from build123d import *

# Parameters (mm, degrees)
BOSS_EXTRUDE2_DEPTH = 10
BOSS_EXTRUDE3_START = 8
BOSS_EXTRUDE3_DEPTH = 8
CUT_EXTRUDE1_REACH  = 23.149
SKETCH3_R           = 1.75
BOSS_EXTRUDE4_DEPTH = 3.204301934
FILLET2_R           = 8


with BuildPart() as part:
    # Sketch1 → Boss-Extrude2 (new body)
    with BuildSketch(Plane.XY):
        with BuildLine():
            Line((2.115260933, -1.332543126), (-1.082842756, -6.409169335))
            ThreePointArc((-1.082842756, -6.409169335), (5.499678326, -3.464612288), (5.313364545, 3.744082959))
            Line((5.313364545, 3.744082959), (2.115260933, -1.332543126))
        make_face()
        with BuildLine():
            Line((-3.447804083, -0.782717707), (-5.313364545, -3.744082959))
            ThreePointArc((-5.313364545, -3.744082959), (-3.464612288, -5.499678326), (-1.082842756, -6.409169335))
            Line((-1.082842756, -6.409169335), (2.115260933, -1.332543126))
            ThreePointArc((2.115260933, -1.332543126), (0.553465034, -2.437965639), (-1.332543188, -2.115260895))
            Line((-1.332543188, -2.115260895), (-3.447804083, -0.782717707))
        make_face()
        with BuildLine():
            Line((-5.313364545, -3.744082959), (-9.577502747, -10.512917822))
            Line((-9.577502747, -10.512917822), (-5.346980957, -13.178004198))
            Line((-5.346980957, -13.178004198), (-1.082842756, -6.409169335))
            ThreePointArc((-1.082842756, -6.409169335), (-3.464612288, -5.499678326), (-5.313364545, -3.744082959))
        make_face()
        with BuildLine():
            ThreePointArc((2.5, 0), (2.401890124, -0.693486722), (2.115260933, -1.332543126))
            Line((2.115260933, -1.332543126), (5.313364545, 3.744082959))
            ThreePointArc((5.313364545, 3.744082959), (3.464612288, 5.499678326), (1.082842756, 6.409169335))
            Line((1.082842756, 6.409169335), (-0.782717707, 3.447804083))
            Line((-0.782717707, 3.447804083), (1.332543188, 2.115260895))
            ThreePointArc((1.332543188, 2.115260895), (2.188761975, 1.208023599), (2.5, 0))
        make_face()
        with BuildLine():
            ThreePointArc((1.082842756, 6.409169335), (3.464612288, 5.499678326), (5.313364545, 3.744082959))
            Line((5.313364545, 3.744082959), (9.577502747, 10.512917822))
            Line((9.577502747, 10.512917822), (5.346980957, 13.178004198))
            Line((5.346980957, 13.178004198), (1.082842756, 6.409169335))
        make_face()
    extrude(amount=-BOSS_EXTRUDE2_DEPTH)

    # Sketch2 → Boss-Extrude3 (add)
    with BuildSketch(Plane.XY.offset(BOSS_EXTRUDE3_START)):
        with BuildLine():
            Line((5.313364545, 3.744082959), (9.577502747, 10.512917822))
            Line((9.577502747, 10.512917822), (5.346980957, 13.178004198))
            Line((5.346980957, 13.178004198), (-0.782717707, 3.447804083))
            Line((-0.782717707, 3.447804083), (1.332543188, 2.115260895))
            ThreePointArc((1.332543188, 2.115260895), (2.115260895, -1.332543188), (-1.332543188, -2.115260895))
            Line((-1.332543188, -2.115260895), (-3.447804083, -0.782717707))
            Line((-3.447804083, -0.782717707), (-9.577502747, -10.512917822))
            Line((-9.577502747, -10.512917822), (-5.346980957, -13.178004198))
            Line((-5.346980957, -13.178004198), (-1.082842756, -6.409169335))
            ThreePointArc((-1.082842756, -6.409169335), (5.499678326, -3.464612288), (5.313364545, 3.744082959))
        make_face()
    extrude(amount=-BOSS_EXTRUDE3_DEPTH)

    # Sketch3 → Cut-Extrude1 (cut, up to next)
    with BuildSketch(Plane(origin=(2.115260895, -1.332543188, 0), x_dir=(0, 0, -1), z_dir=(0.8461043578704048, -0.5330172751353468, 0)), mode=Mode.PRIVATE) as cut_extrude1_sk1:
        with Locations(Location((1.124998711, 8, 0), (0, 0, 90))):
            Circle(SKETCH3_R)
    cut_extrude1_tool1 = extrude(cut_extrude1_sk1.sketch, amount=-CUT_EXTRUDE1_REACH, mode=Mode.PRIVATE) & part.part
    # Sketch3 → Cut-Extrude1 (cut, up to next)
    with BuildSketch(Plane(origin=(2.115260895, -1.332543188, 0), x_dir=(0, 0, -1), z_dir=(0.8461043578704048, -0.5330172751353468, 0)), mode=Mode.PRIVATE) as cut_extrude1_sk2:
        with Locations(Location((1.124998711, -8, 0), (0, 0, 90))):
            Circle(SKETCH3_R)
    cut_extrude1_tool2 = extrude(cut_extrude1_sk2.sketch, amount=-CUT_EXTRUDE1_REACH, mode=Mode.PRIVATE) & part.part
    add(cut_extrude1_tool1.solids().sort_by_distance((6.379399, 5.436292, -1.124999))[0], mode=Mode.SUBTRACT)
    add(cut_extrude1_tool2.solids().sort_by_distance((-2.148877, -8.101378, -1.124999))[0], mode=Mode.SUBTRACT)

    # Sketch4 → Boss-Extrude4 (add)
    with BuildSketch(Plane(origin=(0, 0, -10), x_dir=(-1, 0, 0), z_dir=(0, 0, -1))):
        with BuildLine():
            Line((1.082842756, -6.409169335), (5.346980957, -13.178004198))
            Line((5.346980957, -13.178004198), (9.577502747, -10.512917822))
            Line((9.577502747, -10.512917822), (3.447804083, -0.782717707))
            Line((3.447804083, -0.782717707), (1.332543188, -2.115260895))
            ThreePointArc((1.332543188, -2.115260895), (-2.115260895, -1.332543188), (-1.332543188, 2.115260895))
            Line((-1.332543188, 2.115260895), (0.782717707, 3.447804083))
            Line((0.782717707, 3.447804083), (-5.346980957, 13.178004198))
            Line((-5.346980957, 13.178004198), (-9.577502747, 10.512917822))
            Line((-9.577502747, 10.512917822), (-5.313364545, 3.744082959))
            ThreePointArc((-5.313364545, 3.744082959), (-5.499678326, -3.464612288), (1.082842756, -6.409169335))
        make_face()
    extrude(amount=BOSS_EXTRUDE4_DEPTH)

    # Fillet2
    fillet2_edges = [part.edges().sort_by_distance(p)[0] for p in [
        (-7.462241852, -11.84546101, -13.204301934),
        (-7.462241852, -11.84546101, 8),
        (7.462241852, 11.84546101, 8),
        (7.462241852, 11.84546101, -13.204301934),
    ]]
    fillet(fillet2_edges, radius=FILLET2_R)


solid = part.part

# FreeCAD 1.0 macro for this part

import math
import FreeCAD as App
import Part
import Sketcher
from FreeCAD import Vector


def edges_at(feature, points):
    """Names of the edges that pass closest to the given points."""
    edges = feature.Shape.Edges
    near = lambda p: min(range(len(edges)), key=lambda i: edges[i].distToShape(Part.Vertex(*p))[0])
    return sorted({f"Edge{near(p) + 1}" for p in points})

doc = App.newDocument("Part")
body = doc.addObject("PartDesign::Body", "Body")

sketch1 = body.newObject("Sketcher::SketchObject", "Sketch")
sketch1.AttachmentSupport = (doc.getObject("XY_Plane"), [""])
sketch1.MapMode = "FlatFace"
sketch1.addGeometry([
    Part.ArcOfCircle(Part.Circle(Vector(0, 0, 0), Vector(0, 0, 1), 6.5), math.radians(-99.589683), math.radians(35.170587)),
    Part.LineSegment(Vector(5.313365, 3.744083, 0), Vector(9.577503, 10.512918, 0)),
    Part.LineSegment(Vector(9.577503, 10.512918, 0), Vector(5.346981, 13.178004, 0)),
    Part.LineSegment(Vector(5.346981, 13.178004, 0), Vector(1.082843, 6.409169, 0)),
    Part.LineSegment(Vector(1.082843, 6.409169, 0), Vector(-0.782718, 3.447804, 0)),
    Part.LineSegment(Vector(-0.782718, 3.447804, 0), Vector(1.332543, 2.115261, 0)),
    Part.ArcOfCircle(Part.Circle(Vector(0, 0, 0), Vector(0, 0, 1), 2.5), math.radians(0), math.radians(57.790452)),
    Part.ArcOfCircle(Part.Circle(Vector(0, 0, 0), Vector(0, 0, 1), 2.5), math.radians(-32.209546), math.radians(0)),
    Part.ArcOfCircle(Part.Circle(Vector(0, 0, 0), Vector(0, 0, 1), 2.5), math.radians(-122.209548), math.radians(-32.209546)),
    Part.LineSegment(Vector(-1.332543, -2.115261, 0), Vector(-3.447804, -0.782718, 0)),
    Part.LineSegment(Vector(-3.447804, -0.782718, 0), Vector(-5.313365, -3.744083, 0)),
    Part.LineSegment(Vector(-5.313365, -3.744083, 0), Vector(-9.577503, -10.512918, 0)),
    Part.LineSegment(Vector(-9.577503, -10.512918, 0), Vector(-5.346981, -13.178004, 0)),
    Part.LineSegment(Vector(-5.346981, -13.178004, 0), Vector(-1.082843, -6.409169, 0)),
], False)
sketch1.addConstraint([
    Sketcher.Constraint("Coincident", 0, 2, 1, 1),
    Sketcher.Constraint("Coincident", 1, 2, 2, 1),
    Sketcher.Constraint("Coincident", 2, 2, 3, 1),
    Sketcher.Constraint("Coincident", 3, 2, 4, 1),
    Sketcher.Constraint("Coincident", 4, 2, 5, 1),
    Sketcher.Constraint("Tangent", 5, 2, 6, 2),
    Sketcher.Constraint("Tangent", 6, 1, 7, 2),
    Sketcher.Constraint("Tangent", 7, 1, 8, 2),
    Sketcher.Constraint("Tangent", 8, 1, 9, 1),
    Sketcher.Constraint("Coincident", 9, 2, 10, 1),
    Sketcher.Constraint("Coincident", 10, 2, 11, 1),
    Sketcher.Constraint("Coincident", 11, 2, 12, 1),
    Sketcher.Constraint("Coincident", 12, 2, 13, 1),
    Sketcher.Constraint("Coincident", 13, 2, 0, 1),
    Sketcher.Constraint("Coincident", 0, 3, -1, 1),
    Sketcher.Constraint("Coincident", 6, 3, -1, 1),
    Sketcher.Constraint("Coincident", 8, 3, -1, 1),
    Sketcher.Constraint("Symmetric", 0, 2, 10, 2, -1, 1),
    Sketcher.Constraint("Symmetric", 1, 2, 11, 2, -1, 1),
    Sketcher.Constraint("Symmetric", 2, 2, 12, 2, -1, 1),
    Sketcher.Constraint("Symmetric", 3, 2, 13, 2, -1, 1),
    Sketcher.Constraint("PointOnObject", 6, 1, -1),
    Sketcher.Constraint("Perpendicular", 1, 2),
    Sketcher.Constraint("Perpendicular", 2, 3),
    Sketcher.Constraint("Parallel", 3, 4),
    Sketcher.Constraint("Perpendicular", 4, 5),
    Sketcher.Constraint("Parallel", 5, 9),
    Sketcher.Constraint("Perpendicular", 9, 10),
    Sketcher.Constraint("Equal", 1, 3),
    Sketcher.Constraint("Radius", 0, 6.5),
    Sketcher.Constraint("Radius", 6, 2.5),
    Sketcher.Constraint("Distance", 1, 8.0),
    Sketcher.Constraint("Distance", 2, 5.0),
    Sketcher.Constraint("DistanceX", 11, 2, 9, 2, 6.129699),
    Sketcher.Constraint("DistanceX", -1, 1, 7, 1, 2.115261),
])
pad1 = body.newObject("PartDesign::Pad", "Pad")
pad1.Profile = sketch1
pad1.Length = 10
pad1.Reversed = True

sketch2 = body.newObject("Sketcher::SketchObject", "Sketch001")
sketch2.AttachmentSupport = (doc.getObject("XY_Plane"), [""])
sketch2.MapMode = "FlatFace"
sketch2.AttachmentOffset = App.Placement(Vector(0, 0, 8), App.Rotation())
sketch2.addGeometry([
    Part.LineSegment(Vector(5.313365, 3.744083, 0), Vector(9.577503, 10.512918, 0)),
    Part.LineSegment(Vector(9.577503, 10.512918, 0), Vector(5.346981, 13.178004, 0)),
    Part.LineSegment(Vector(5.346981, 13.178004, 0), Vector(-0.782718, 3.447804, 0)),
    Part.LineSegment(Vector(-0.782718, 3.447804, 0), Vector(1.332543, 2.115261, 0)),
    Part.ArcOfCircle(Part.Circle(Vector(0, 0, 0), Vector(0, 0, 1), 2.5), math.radians(-122.209548), math.radians(57.790452)),
    Part.LineSegment(Vector(-1.332543, -2.115261, 0), Vector(-3.447804, -0.782718, 0)),
    Part.LineSegment(Vector(-3.447804, -0.782718, 0), Vector(-9.577503, -10.512918, 0)),
    Part.LineSegment(Vector(-9.577503, -10.512918, 0), Vector(-5.346981, -13.178004, 0)),
    Part.LineSegment(Vector(-5.346981, -13.178004, 0), Vector(-1.082843, -6.409169, 0)),
    Part.ArcOfCircle(Part.Circle(Vector(0, 0, 0), Vector(0, 0, 1), 6.5), math.radians(-99.589683), math.radians(35.170587)),
], False)
sketch2.addConstraint([
    Sketcher.Constraint("Coincident", 0, 2, 1, 1),
    Sketcher.Constraint("Coincident", 1, 2, 2, 1),
    Sketcher.Constraint("Coincident", 2, 2, 3, 1),
    Sketcher.Constraint("Tangent", 3, 2, 4, 2),
    Sketcher.Constraint("Tangent", 4, 1, 5, 1),
    Sketcher.Constraint("Coincident", 5, 2, 6, 1),
    Sketcher.Constraint("Coincident", 6, 2, 7, 1),
    Sketcher.Constraint("Coincident", 7, 2, 8, 1),
    Sketcher.Constraint("Coincident", 8, 2, 9, 1),
    Sketcher.Constraint("Coincident", 9, 2, 0, 1),
    Sketcher.Constraint("Coincident", 4, 3, -1, 1),
    Sketcher.Constraint("Coincident", 9, 3, -1, 1),
    Sketcher.Constraint("Symmetric", 0, 2, 6, 2, -1, 1),
    Sketcher.Constraint("Symmetric", 1, 2, 7, 2, -1, 1),
    Sketcher.Constraint("Perpendicular", 0, 1),
    Sketcher.Constraint("Perpendicular", 1, 2),
    Sketcher.Constraint("Perpendicular", 2, 3),
    Sketcher.Constraint("Parallel", 3, 5),
    Sketcher.Constraint("Perpendicular", 5, 6),
    Sketcher.Constraint("Perpendicular", 7, 8),
    Sketcher.Constraint("Equal", 3, 5),
    Sketcher.Constraint("Radius", 4, 2.5),
    Sketcher.Constraint("Radius", 9, 6.5),
    Sketcher.Constraint("Distance", 0, 8.0),
    Sketcher.Constraint("Distance", 1, 5.0),
    Sketcher.Constraint("DistanceX", 2, 2, 1, 2, 6.129699),
])
pad2 = body.newObject("PartDesign::Pad", "Pad001")
pad2.Profile = sketch2
pad2.Length = 8
pad2.Reversed = True

sketch3 = body.newObject("Sketcher::SketchObject", "Sketch002")
sketch3.Placement = App.Placement(Vector(2.115261, -1.332543, 0), App.Rotation(Vector(0, 0, -1), Vector(0.533017275, 0.846104358, 0), Vector(0.846104358, -0.533017275, 0), "ZXY"))
sketch3.addGeometry(Part.Circle(Vector(1.124999, 8, 0), Vector(0, 0, 1), 1.75), False)
sketch3.addConstraint([
    Sketcher.Constraint("Diameter", 0, 3.5),
    Sketcher.Constraint("DistanceY", -1, 1, 0, 3, 8.0),
    Sketcher.Constraint("DistanceX", -1, 1, 0, 3, 1.124999),
])
pocket1 = body.newObject("PartDesign::Pocket", "Pocket")
pocket1.Profile = sketch3
pocket1.Type = "UpToFirst"

sketch4 = body.newObject("Sketcher::SketchObject", "Sketch003")
sketch4.Placement = App.Placement(Vector(2.115261, -1.332543, 0), App.Rotation(Vector(0, 0, -1), Vector(0.533017275, 0.846104358, 0), Vector(0.846104358, -0.533017275, 0), "ZXY"))
sketch4.addGeometry(Part.Circle(Vector(1.124999, -8, 0), Vector(0, 0, 1), 1.75), False)
sketch4.addConstraint([
    Sketcher.Constraint("Diameter", 0, 3.5),
    Sketcher.Constraint("DistanceY", 0, 3, -1, 1, 8.0),
    Sketcher.Constraint("DistanceX", -1, 1, 0, 3, 1.124999),
])
pocket2 = body.newObject("PartDesign::Pocket", "Pocket001")
pocket2.Profile = sketch4
pocket2.Type = "UpToFirst"

sketch5 = body.newObject("Sketcher::SketchObject", "Sketch004")
sketch5.AttachmentSupport = (doc.getObject("XY_Plane"), [""])
sketch5.MapMode = "FlatFace"
sketch5.AttachmentOffset = App.Placement(Vector(0, 0, -10), App.Rotation())
sketch5.addGeometry([
    Part.LineSegment(Vector(-1.082843, -6.409169, 0), Vector(-5.346981, -13.178004, 0)),
    Part.LineSegment(Vector(-5.346981, -13.178004, 0), Vector(-9.577503, -10.512918, 0)),
    Part.LineSegment(Vector(-9.577503, -10.512918, 0), Vector(-3.447804, -0.782718, 0)),
    Part.LineSegment(Vector(-3.447804, -0.782718, 0), Vector(-1.332543, -2.115261, 0)),
    Part.ArcOfCircle(Part.Circle(Vector(0, 0, 0), Vector(0, 0, 1), 2.5), math.radians(-122.209548), math.radians(57.790452)),
    Part.LineSegment(Vector(1.332543, 2.115261, 0), Vector(-0.782718, 3.447804, 0)),
    Part.LineSegment(Vector(-0.782718, 3.447804, 0), Vector(5.346981, 13.178004, 0)),
    Part.LineSegment(Vector(5.346981, 13.178004, 0), Vector(9.577503, 10.512918, 0)),
    Part.LineSegment(Vector(9.577503, 10.512918, 0), Vector(5.313365, 3.744083, 0)),
    Part.ArcOfCircle(Part.Circle(Vector(0, 0, 0), Vector(0, 0, 1), 6.5), math.radians(-99.589683), math.radians(35.170587)),
], False)
sketch5.addConstraint([
    Sketcher.Constraint("Coincident", 0, 2, 1, 1),
    Sketcher.Constraint("Coincident", 1, 2, 2, 1),
    Sketcher.Constraint("Coincident", 2, 2, 3, 1),
    Sketcher.Constraint("Tangent", 3, 2, 4, 1),
    Sketcher.Constraint("Tangent", 4, 2, 5, 1),
    Sketcher.Constraint("Coincident", 5, 2, 6, 1),
    Sketcher.Constraint("Coincident", 6, 2, 7, 1),
    Sketcher.Constraint("Coincident", 7, 2, 8, 1),
    Sketcher.Constraint("Coincident", 8, 2, 9, 2),
    Sketcher.Constraint("Coincident", 9, 1, 0, 1),
    Sketcher.Constraint("Coincident", 4, 3, -1, 1),
    Sketcher.Constraint("Coincident", 9, 3, -1, 1),
    Sketcher.Constraint("Symmetric", 0, 2, 6, 2, -1, 1),
    Sketcher.Constraint("Symmetric", 1, 2, 7, 2, -1, 1),
    Sketcher.Constraint("Perpendicular", 0, 1),
    Sketcher.Constraint("Perpendicular", 1, 2),
    Sketcher.Constraint("Perpendicular", 2, 3),
    Sketcher.Constraint("Parallel", 3, 5),
    Sketcher.Constraint("Perpendicular", 5, 6),
    Sketcher.Constraint("Perpendicular", 7, 8),
    Sketcher.Constraint("Equal", 3, 5),
    Sketcher.Constraint("Radius", 4, 2.5),
    Sketcher.Constraint("Radius", 9, 6.5),
    Sketcher.Constraint("Distance", 0, 8.0),
    Sketcher.Constraint("Distance", 1, 5.0),
    Sketcher.Constraint("DistanceX", 1, 2, 2, 2, 6.129699),
])
pad3 = body.newObject("PartDesign::Pad", "Pad002")
pad3.Profile = sketch5
pad3.Length = 3.204302
pad3.Reversed = True
doc.recompute()

fillet = body.newObject("PartDesign::Fillet", "Fillet")
fillet.Base = (pad3, edges_at(pad3, [
    (-7.462, -11.845, -13.204),
    (-7.462, -11.845, 8),
    (7.462, 11.845, 8),
    (7.462, 11.845, -13.204),
]))
fillet.Radius = 8

doc.recompute()
